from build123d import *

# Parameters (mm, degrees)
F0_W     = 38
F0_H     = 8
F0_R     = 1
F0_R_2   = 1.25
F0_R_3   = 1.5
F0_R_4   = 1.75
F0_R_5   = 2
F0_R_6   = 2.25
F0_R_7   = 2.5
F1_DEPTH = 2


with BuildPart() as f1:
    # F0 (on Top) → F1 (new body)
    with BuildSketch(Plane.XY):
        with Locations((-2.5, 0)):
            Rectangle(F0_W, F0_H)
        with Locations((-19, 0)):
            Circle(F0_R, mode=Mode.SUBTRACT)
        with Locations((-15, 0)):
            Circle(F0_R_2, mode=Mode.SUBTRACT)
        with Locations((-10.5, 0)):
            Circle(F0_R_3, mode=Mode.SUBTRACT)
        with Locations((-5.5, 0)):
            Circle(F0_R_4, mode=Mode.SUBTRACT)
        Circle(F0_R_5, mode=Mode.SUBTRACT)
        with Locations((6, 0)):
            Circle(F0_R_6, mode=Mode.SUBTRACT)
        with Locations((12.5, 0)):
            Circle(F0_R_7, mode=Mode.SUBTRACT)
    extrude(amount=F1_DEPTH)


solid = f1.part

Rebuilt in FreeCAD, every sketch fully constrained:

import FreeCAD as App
import Part
import Sketcher
Q = App.Units.Quantity


def add_polygon(sketch, points):
    """Adds a closed chain of lines whose ends are joined by coincident constraints."""
    first, n = sketch.GeometryCount, len(points)
    for a, b in zip(points, points[1:] + points[:1]):
        sketch.addGeometry(Part.LineSegment(App.Vector(*a, 0), App.Vector(*b, 0)), False)
    for i in range(n):
        sketch.addConstraint(Sketcher.Constraint("Coincident", first + i, 2, first + (i + 1) % n, 1))

doc = App.newDocument("Part")
params = doc.addObject("Spreadsheet::Sheet", "Params")
for row, (alias, value) in enumerate([
    ("sketch1_diameter", "2 mm"),
    ("sketch1_diameter2", "3 mm"),
    ("sketch1_diameter3", "4 mm"),
    ("sketch1_diameter4", "5 mm"),
    ("sketch1_diameter5", "2.5 mm"),
    ("pad1_length", "2 mm"),
], start=1):
    params.set(f"A{row}", alias)
    params.set(f"B{row}", "=" + value)
    params.setAlias(f"B{row}", alias)

body = doc.addObject("PartDesign::Body", "Body")

# Sketch on XY plane
sketch1 = doc.addObject("Sketcher::SketchObject", "Sketch")
body.addObject(sketch1)
sketch1.AttachmentSupport = (doc.XY_Plane, [""])
sketch1.MapMode = "FlatFace"
add_polygon(sketch1, [(-21.5, 4), (-21.5, -4), (16.5, -4), (16.5, 4)])  # lines 0-3
sketch1.addGeometry(Part.Circle(App.Vector(-19, 0, 0), App.Vector(0, 0, 1), 1), False)  # 4
sketch1.addGeometry(Part.Circle(App.Vector(-15, 0, 0), App.Vector(0, 0, 1), 1.2), False)  # 5
sketch1.addGeometry(Part.Circle(App.Vector(-10.5, 0, 0), App.Vector(0, 0, 1), 1.5), False)  # 6
sketch1.addGeometry(Part.Circle(App.Vector(-5.5, 0, 0), App.Vector(0, 0, 1), 1.8), False)  # 7
sketch1.addGeometry(Part.Circle(App.Vector(0, 0, 0), App.Vector(0, 0, 1), 2), False)  # 8
sketch1.addGeometry(Part.Circle(App.Vector(6, 0, 0), App.Vector(0, 0, 1), 2.2), False)  # 9
sketch1.addGeometry(Part.Circle(App.Vector(12.5, 0, 0), App.Vector(0, 0, 1), 2.5), False)  # 10
sketch1.addConstraint([
    Sketcher.Constraint("Vertical", 0),
    Sketcher.Constraint("Horizontal", 1),
    Sketcher.Constraint("Vertical", 2),
    Sketcher.Constraint("Horizontal", 3),
    Sketcher.Constraint("Coincident", 8, 3, -1, 1),
    Sketcher.Constraint("PointOnObject", 4, 3, -1),
    Sketcher.Constraint("PointOnObject", 5, 3, -1),
    Sketcher.Constraint("PointOnObject", 6, 3, -1),
    Sketcher.Constraint("PointOnObject", 7, 3, -1),
    Sketcher.Constraint("PointOnObject", 9, 3, -1),
    Sketcher.Constraint("PointOnObject", 10, 3, -1),
    Sketcher.Constraint("Diameter", 4, Q("2 mm")),
    Sketcher.Constraint("Diameter", 6, Q("3 mm")),
    Sketcher.Constraint("Diameter", 8, Q("4 mm")),
    Sketcher.Constraint("Diameter", 10, Q("5 mm")),
    Sketcher.Constraint("Diameter", 5, Q("2.5 mm")),
    Sketcher.Constraint("Diameter", 7, Q("3.5 mm")),
    Sketcher.Constraint("Diameter", 9, Q("4.5 mm")),
    Sketcher.Constraint("DistanceX", 1, 1, 1, 2, Q("38 mm")),
    Sketcher.Constraint("DistanceY", 0, 2, 0, 1, Q("8 mm")),
    Sketcher.Constraint("DistanceX", 4, 3, -1, 1, Q("19 mm")),
    Sketcher.Constraint("DistanceX", 5, 3, -1, 1, Q("15 mm")),
    Sketcher.Constraint("DistanceX", -1, 1, 9, 3, Q("6 mm")),
    Sketcher.Constraint("DistanceY", 0, 2, -1, 1, Q("4 mm")),
    Sketcher.Constraint("DistanceX", 6, 3, 7, 3, Q("5 mm")),
    Sketcher.Constraint("DistanceX", 7, 3, 10, 3, Q("18 mm")),
    Sketcher.Constraint("DistanceX", 0, 2, 6, 3, Q("11 mm")),
    Sketcher.Constraint("DistanceX", 6, 3, -1, 1, Q("10.5 mm")),
])
sketch1.setExpression("Constraints[15]", "Params.sketch1_diameter")
sketch1.setExpression("Constraints[16]", "Params.sketch1_diameter2")
sketch1.setExpression("Constraints[17]", "Params.sketch1_diameter3")
sketch1.setExpression("Constraints[18]", "Params.sketch1_diameter4")
sketch1.setExpression("Constraints[19]", "Params.sketch1_diameter5")
pad1 = doc.addObject("PartDesign::Pad", "Pad")
body.addObject(pad1)
pad1.Profile = sketch1
pad1.setExpression("Length", "Params.pad1_length")

doc.recompute()
